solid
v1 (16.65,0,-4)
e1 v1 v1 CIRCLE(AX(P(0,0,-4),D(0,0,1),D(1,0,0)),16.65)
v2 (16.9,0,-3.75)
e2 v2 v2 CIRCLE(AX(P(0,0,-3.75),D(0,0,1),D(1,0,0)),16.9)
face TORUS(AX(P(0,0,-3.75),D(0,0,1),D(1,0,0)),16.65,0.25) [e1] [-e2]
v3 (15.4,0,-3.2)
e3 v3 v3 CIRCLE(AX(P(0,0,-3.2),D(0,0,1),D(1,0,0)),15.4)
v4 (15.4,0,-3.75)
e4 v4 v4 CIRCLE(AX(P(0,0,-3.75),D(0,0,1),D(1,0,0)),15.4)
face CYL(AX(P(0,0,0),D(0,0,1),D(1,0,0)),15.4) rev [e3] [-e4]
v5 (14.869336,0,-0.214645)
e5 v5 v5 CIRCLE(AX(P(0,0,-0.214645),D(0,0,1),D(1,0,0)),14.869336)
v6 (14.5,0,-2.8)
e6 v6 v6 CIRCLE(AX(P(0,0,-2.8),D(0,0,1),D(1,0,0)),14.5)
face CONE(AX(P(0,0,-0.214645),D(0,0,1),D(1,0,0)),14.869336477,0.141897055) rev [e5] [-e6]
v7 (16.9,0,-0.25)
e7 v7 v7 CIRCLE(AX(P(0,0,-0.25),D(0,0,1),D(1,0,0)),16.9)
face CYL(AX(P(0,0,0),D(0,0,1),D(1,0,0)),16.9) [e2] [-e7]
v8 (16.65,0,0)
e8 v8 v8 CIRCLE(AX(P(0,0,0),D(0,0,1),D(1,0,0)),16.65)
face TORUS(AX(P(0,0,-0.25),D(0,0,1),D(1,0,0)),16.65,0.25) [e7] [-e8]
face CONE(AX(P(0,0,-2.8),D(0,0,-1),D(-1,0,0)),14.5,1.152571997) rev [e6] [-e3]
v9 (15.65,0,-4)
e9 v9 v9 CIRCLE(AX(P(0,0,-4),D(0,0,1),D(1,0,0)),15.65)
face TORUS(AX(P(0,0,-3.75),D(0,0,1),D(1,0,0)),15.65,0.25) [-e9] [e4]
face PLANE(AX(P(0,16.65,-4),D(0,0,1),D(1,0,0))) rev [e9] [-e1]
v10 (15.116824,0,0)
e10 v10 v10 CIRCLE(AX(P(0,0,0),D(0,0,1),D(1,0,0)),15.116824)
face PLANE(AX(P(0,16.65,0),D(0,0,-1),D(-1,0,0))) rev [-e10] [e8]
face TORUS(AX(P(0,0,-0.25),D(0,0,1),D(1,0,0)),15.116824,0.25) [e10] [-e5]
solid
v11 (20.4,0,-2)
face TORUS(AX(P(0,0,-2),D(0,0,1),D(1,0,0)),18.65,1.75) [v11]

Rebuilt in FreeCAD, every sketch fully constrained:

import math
import FreeCAD as App
import Part
import Sketcher
from FreeCAD import Vector
Q = App.Units.Quantity

doc = App.newDocument("Part")
params = doc.addObject("Spreadsheet::Sheet", "Params")
for row, (alias, value) in enumerate([
    ("sketch1_width", "1 mm"),
    ("sketch1_radius", "0.25 mm"),
    ("sketch1_height", "3.5 mm"),
    ("sketch1_height2", "0.55 mm"),
    ("revolution_angle", "360 deg"),
    ("sketch2_diameter", "3.5 mm"),
    ("revolution2_angle", "360 deg"),
], start=1):
    params.set(f"A{row}", alias)
    params.set(f"B{row}", "=" + value)
    params.setAlias(f"B{row}", alias)

body = doc.addObject("PartDesign::Body", "Body")

# Sketch on YZ plane
sketch1 = doc.addObject("Sketcher::SketchObject", "Sketch")
body.addObject(sketch1)
sketch1.AttachmentSupport = (doc.YZ_Plane, [""])
sketch1.MapMode = "FlatFace"
sketch1.addGeometry(Part.LineSegment(Vector(16.9, -3.75, 0), Vector(16.9, -0.25, 0)), False)
sketch1.addGeometry(Part.ArcOfCircle(Part.Circle(Vector(16.65, -0.25, 0), Vector(0, 0, 1), 0.25), math.radians(0), math.radians(90)), False)
sketch1.addGeometry(Part.LineSegment(Vector(16.65, 0, 0), Vector(15.12, 0, 0)), False)
sketch1.addGeometry(Part.ArcOfCircle(Part.Circle(Vector(15.12, -0.25, 0), Vector(0, 0, 1), 0.25), math.radians(90), math.radians(172)), False)
sketch1.addGeometry(Part.LineSegment(Vector(14.87, -0.21, 0), Vector(14.5, -2.8, 0)), False)
sketch1.addGeometry(Part.LineSegment(Vector(14.5, -2.8, 0), Vector(15.4, -3.2, 0)), False)
sketch1.addGeometry(Part.LineSegment(Vector(15.4, -3.2, 0), Vector(15.4, -3.75, 0)), False)
sketch1.addGeometry(Part.ArcOfCircle(Part.Circle(Vector(15.65, -3.75, 0), Vector(0, 0, 1), 0.25), math.radians(-180), math.radians(-90)), False)
sketch1.addGeometry(Part.LineSegment(Vector(15.65, -4, 0), Vector(16.65, -4, 0)), False)
sketch1.addGeometry(Part.ArcOfCircle(Part.Circle(Vector(16.65, -3.75, 0), Vector(0, 0, 1), 0.25), math.radians(-90), math.radians(0)), False)
sketch1.addConstraint(Sketcher.Constraint("Tangent", 0, 2, 1, 1))
sketch1.addConstraint(Sketcher.Constraint("Tangent", 1, 2, 2, 1))
sketch1.addConstraint(Sketcher.Constraint("Tangent", 2, 2, 3, 1))
sketch1.addConstraint(Sketcher.Constraint("Tangent", 3, 2, 4, 1))
sketch1.addConstraint(Sketcher.Constraint("Coincident", 4, 2, 5, 1))
sketch1.addConstraint(Sketcher.Constraint("Coincident", 5, 2, 6, 1))
sketch1.addConstraint(Sketcher.Constraint("Tangent", 6, 2, 7, 1))
sketch1.addConstraint(Sketcher.Constraint("Tangent", 7, 2, 8, 1))
sketch1.addConstraint(Sketcher.Constraint("Tangent", 8, 2, 9, 1))
sketch1.addConstraint(Sketcher.Constraint("Tangent", 9, 2, 0, 1))
sketch1.addConstraint(Sketcher.Constraint("Vertical", 0))
sketch1.addConstraint(Sketcher.Constraint("Horizontal", 2))
sketch1.addConstraint(Sketcher.Constraint("Vertical", 6))
sketch1.addConstraint(Sketcher.Constraint("Horizontal", 8))
sketch1.addConstraint(Sketcher.Constraint("Equal", 1, 3))
sketch1.addConstraint(Sketcher.Constraint("Equal", 3, 7))
sketch1.addConstraint(Sketcher.Constraint("Equal", 7, 9))
sketch1.addConstraint(Sketcher.Constraint("PointOnObject", 1, 2, -1))
sketch1.addConstraint(Sketcher.Constraint("DistanceX", 8, 1, 8, 2, Q("1 mm")))
sketch1.addConstraint(Sketcher.Constraint("Radius", 1, Q("0.25 mm")))
sketch1.addConstraint(Sketcher.Constraint("DistanceY", 0, 1, 0, 2, Q("3.5 mm")))
sketch1.addConstraint(Sketcher.Constraint("DistanceY", 6, 2, 6, 1, Q("0.55 mm")))
sketch1.addConstraint(Sketcher.Constraint("DistanceX", -1, 1, 0, 2, Q("16.9 mm")))
sketch1.addConstraint(Sketcher.Constraint("DistanceX", -1, 1, 4, 2, Q("14.5 mm")))
sketch1.addConstraint(Sketcher.Constraint("DistanceY", 4, 2, -1, 1, Q("2.8 mm")))
sketch1.addConstraint(Sketcher.Constraint("DistanceX", 2, 2, 2, 1, Q("1.533176 mm")))
sketch1.setExpression("Constraints[18]", "Params.sketch1_width")
sketch1.setExpression("Constraints[19]", "Params.sketch1_radius")
sketch1.setExpression("Constraints[20]", "Params.sketch1_height")
sketch1.setExpression("Constraints[21]", "Params.sketch1_height2")
revolution = doc.addObject("PartDesign::Revolution", "Revolution")
body.addObject(revolution)
revolution.Profile = sketch1
revolution.ReferenceAxis = (sketch1, ["V_Axis"])
revolution.setExpression("Angle", "Params.revolution_angle")
body2 = doc.addObject("PartDesign::Body", "Body001")

# Sketch on YZ plane
sketch2 = doc.addObject("Sketcher::SketchObject", "Sketch001")
body2.addObject(sketch2)
sketch2.AttachmentSupport = (doc.getObject("YZ_Plane001"), [""])
sketch2.MapMode = "FlatFace"
sketch2.addGeometry(Part.Circle(Vector(18.6, -2, 0), Vector(0, 0, 1), 1.8), False)
sketch2.addConstraint(Sketcher.Constraint("Diameter", 0, Q("3.5 mm")))
sketch2.addConstraint(Sketcher.Constraint("DistanceY", 0, 3, -1, 1, Q("2 mm")))
sketch2.addConstraint(Sketcher.Constraint("DistanceX", -1, 1, 0, 3, Q("18.65 mm")))
sketch2.setExpression("Constraints[0]", "Params.sketch2_diameter")
revolution2 = doc.addObject("PartDesign::Revolution", "Revolution001")
body2.addObject(revolution2)
revolution2.Profile = sketch2
revolution2.ReferenceAxis = (sketch2, ["V_Axis"])
revolution2.setExpression("Angle", "Params.revolution2_angle")

doc.recompute()
